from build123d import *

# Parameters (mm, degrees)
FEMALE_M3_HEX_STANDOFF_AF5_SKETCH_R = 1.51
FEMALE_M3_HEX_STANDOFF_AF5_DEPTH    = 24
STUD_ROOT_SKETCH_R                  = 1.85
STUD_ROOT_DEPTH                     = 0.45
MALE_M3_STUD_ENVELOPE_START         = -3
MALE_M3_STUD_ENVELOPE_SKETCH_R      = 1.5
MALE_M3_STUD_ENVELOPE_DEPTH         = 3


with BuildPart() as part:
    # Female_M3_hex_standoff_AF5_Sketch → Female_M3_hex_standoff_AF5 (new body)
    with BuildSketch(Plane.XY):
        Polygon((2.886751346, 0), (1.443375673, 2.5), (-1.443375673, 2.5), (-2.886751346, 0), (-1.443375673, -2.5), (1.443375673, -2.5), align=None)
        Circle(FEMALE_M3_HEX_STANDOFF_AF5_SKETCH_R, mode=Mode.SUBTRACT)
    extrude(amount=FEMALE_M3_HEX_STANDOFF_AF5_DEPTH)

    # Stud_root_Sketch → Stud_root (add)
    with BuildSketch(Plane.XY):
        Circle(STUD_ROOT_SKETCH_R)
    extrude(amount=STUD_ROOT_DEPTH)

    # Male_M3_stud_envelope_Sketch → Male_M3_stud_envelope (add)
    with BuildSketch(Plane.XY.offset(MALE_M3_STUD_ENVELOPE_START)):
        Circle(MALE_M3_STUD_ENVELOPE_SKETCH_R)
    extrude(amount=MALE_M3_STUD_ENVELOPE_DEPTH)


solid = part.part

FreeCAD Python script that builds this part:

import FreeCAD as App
import Part
import Sketcher
from FreeCAD import Vector
Q = App.Units.Quantity


def add_polygon(sketch, points):
    """Adds a closed chain of lines whose ends are joined by coincident constraints."""
    first, n = sketch.GeometryCount, len(points)
    for a, b in zip(points, points[1:] + points[:1]):
        sketch.addGeometry(Part.LineSegment(App.Vector(*a, 0), App.Vector(*b, 0)), False)
    for i in range(n):
        sketch.addConstraint(Sketcher.Constraint("Coincident", first + i, 2, first + (i + 1) % n, 1))

doc = App.newDocument("Part")
body = doc.addObject("PartDesign::Body", "Body")

sketch1 = body.newObject("Sketcher::SketchObject", "Sketch")
sketch1.AttachmentSupport = (doc.getObject("XY_Plane"), [""])
sketch1.MapMode = "FlatFace"
add_polygon(sketch1, [(2.9, 0), (1.4, 2.5), (-1.4, 2.5), (-2.9, 0), (-1.4, -2.5), (1.4, -2.5)])
sketch1.addGeometry(Part.Circle(Vector(0, 0, 0), Vector(0, 0, 1), 1.5), False)
sketch1.addConstraint(Sketcher.Constraint("Horizontal", 1))
sketch1.addConstraint(Sketcher.Constraint("Horizontal", 4))
sketch1.addConstraint(Sketcher.Constraint("Coincident", 6, 3, -1, 1))
sketch1.addConstraint(Sketcher.Constraint("Symmetric", 0, 2, 3, 2, -1, 1))
sketch1.addConstraint(Sketcher.Constraint("Symmetric", 2, 2, 5, 2, -1, 1))
sketch1.addConstraint(Sketcher.Constraint("PointOnObject", 2, 2, -1))
sketch1.addConstraint(Sketcher.Constraint("Parallel", 2, 5))
sketch1.addConstraint(Sketcher.Constraint("Vertical", 1, 2, 3, 2))
sketch1.addConstraint(Sketcher.Constraint("Diameter", 6, Q("3.02 mm")))
sketch1.addConstraint(Sketcher.Constraint("Angle", 0, Q("120 deg")))
sketch1.addConstraint(Sketcher.Constraint("DistanceY", 3, 2, 1, 2, Q("5 mm")))
sketch1.addConstraint(Sketcher.Constraint("DistanceX", 1, 2, 1, 1, Q("2.886751 mm")))
pad1 = body.newObject("PartDesign::Pad", "Pad")
pad1.Profile = sketch1
pad1.Length = 24

sketch2 = body.newObject("Sketcher::SketchObject", "Sketch001")
sketch2.AttachmentSupport = (doc.getObject("XY_Plane"), [""])
sketch2.MapMode = "FlatFace"
sketch2.addGeometry(Part.Circle(Vector(0, 0, 0), Vector(0, 0, 1), 1.9), False)
sketch2.addConstraint(Sketcher.Constraint("Coincident", 0, 3, -1, 1))
sketch2.addConstraint(Sketcher.Constraint("Diameter", 0, Q("3.7 mm")))
pad2 = body.newObject("PartDesign::Pad", "Pad001")
pad2.Profile = sketch2
pad2.Length = 0.45

sketch3 = body.newObject("Sketcher::SketchObject", "Sketch002")
sketch3.AttachmentSupport = (doc.getObject("XY_Plane"), [""])
sketch3.MapMode = "FlatFace"
sketch3.AttachmentOffset = App.Placement(Vector(0, 0, -3), App.Rotation())
sketch3.addGeometry(Part.Circle(Vector(0, 0, 0), Vector(0, 0, 1), 1.5), False)
sketch3.addConstraint(Sketcher.Constraint("Coincident", 0, 3, -1, 1))
sketch3.addConstraint(Sketcher.Constraint("Diameter", 0, Q("3 mm")))
pad3 = body.newObject("PartDesign::Pad", "Pad002")
pad3.Profile = sketch3
pad3.Length = 3

doc.recompute()
